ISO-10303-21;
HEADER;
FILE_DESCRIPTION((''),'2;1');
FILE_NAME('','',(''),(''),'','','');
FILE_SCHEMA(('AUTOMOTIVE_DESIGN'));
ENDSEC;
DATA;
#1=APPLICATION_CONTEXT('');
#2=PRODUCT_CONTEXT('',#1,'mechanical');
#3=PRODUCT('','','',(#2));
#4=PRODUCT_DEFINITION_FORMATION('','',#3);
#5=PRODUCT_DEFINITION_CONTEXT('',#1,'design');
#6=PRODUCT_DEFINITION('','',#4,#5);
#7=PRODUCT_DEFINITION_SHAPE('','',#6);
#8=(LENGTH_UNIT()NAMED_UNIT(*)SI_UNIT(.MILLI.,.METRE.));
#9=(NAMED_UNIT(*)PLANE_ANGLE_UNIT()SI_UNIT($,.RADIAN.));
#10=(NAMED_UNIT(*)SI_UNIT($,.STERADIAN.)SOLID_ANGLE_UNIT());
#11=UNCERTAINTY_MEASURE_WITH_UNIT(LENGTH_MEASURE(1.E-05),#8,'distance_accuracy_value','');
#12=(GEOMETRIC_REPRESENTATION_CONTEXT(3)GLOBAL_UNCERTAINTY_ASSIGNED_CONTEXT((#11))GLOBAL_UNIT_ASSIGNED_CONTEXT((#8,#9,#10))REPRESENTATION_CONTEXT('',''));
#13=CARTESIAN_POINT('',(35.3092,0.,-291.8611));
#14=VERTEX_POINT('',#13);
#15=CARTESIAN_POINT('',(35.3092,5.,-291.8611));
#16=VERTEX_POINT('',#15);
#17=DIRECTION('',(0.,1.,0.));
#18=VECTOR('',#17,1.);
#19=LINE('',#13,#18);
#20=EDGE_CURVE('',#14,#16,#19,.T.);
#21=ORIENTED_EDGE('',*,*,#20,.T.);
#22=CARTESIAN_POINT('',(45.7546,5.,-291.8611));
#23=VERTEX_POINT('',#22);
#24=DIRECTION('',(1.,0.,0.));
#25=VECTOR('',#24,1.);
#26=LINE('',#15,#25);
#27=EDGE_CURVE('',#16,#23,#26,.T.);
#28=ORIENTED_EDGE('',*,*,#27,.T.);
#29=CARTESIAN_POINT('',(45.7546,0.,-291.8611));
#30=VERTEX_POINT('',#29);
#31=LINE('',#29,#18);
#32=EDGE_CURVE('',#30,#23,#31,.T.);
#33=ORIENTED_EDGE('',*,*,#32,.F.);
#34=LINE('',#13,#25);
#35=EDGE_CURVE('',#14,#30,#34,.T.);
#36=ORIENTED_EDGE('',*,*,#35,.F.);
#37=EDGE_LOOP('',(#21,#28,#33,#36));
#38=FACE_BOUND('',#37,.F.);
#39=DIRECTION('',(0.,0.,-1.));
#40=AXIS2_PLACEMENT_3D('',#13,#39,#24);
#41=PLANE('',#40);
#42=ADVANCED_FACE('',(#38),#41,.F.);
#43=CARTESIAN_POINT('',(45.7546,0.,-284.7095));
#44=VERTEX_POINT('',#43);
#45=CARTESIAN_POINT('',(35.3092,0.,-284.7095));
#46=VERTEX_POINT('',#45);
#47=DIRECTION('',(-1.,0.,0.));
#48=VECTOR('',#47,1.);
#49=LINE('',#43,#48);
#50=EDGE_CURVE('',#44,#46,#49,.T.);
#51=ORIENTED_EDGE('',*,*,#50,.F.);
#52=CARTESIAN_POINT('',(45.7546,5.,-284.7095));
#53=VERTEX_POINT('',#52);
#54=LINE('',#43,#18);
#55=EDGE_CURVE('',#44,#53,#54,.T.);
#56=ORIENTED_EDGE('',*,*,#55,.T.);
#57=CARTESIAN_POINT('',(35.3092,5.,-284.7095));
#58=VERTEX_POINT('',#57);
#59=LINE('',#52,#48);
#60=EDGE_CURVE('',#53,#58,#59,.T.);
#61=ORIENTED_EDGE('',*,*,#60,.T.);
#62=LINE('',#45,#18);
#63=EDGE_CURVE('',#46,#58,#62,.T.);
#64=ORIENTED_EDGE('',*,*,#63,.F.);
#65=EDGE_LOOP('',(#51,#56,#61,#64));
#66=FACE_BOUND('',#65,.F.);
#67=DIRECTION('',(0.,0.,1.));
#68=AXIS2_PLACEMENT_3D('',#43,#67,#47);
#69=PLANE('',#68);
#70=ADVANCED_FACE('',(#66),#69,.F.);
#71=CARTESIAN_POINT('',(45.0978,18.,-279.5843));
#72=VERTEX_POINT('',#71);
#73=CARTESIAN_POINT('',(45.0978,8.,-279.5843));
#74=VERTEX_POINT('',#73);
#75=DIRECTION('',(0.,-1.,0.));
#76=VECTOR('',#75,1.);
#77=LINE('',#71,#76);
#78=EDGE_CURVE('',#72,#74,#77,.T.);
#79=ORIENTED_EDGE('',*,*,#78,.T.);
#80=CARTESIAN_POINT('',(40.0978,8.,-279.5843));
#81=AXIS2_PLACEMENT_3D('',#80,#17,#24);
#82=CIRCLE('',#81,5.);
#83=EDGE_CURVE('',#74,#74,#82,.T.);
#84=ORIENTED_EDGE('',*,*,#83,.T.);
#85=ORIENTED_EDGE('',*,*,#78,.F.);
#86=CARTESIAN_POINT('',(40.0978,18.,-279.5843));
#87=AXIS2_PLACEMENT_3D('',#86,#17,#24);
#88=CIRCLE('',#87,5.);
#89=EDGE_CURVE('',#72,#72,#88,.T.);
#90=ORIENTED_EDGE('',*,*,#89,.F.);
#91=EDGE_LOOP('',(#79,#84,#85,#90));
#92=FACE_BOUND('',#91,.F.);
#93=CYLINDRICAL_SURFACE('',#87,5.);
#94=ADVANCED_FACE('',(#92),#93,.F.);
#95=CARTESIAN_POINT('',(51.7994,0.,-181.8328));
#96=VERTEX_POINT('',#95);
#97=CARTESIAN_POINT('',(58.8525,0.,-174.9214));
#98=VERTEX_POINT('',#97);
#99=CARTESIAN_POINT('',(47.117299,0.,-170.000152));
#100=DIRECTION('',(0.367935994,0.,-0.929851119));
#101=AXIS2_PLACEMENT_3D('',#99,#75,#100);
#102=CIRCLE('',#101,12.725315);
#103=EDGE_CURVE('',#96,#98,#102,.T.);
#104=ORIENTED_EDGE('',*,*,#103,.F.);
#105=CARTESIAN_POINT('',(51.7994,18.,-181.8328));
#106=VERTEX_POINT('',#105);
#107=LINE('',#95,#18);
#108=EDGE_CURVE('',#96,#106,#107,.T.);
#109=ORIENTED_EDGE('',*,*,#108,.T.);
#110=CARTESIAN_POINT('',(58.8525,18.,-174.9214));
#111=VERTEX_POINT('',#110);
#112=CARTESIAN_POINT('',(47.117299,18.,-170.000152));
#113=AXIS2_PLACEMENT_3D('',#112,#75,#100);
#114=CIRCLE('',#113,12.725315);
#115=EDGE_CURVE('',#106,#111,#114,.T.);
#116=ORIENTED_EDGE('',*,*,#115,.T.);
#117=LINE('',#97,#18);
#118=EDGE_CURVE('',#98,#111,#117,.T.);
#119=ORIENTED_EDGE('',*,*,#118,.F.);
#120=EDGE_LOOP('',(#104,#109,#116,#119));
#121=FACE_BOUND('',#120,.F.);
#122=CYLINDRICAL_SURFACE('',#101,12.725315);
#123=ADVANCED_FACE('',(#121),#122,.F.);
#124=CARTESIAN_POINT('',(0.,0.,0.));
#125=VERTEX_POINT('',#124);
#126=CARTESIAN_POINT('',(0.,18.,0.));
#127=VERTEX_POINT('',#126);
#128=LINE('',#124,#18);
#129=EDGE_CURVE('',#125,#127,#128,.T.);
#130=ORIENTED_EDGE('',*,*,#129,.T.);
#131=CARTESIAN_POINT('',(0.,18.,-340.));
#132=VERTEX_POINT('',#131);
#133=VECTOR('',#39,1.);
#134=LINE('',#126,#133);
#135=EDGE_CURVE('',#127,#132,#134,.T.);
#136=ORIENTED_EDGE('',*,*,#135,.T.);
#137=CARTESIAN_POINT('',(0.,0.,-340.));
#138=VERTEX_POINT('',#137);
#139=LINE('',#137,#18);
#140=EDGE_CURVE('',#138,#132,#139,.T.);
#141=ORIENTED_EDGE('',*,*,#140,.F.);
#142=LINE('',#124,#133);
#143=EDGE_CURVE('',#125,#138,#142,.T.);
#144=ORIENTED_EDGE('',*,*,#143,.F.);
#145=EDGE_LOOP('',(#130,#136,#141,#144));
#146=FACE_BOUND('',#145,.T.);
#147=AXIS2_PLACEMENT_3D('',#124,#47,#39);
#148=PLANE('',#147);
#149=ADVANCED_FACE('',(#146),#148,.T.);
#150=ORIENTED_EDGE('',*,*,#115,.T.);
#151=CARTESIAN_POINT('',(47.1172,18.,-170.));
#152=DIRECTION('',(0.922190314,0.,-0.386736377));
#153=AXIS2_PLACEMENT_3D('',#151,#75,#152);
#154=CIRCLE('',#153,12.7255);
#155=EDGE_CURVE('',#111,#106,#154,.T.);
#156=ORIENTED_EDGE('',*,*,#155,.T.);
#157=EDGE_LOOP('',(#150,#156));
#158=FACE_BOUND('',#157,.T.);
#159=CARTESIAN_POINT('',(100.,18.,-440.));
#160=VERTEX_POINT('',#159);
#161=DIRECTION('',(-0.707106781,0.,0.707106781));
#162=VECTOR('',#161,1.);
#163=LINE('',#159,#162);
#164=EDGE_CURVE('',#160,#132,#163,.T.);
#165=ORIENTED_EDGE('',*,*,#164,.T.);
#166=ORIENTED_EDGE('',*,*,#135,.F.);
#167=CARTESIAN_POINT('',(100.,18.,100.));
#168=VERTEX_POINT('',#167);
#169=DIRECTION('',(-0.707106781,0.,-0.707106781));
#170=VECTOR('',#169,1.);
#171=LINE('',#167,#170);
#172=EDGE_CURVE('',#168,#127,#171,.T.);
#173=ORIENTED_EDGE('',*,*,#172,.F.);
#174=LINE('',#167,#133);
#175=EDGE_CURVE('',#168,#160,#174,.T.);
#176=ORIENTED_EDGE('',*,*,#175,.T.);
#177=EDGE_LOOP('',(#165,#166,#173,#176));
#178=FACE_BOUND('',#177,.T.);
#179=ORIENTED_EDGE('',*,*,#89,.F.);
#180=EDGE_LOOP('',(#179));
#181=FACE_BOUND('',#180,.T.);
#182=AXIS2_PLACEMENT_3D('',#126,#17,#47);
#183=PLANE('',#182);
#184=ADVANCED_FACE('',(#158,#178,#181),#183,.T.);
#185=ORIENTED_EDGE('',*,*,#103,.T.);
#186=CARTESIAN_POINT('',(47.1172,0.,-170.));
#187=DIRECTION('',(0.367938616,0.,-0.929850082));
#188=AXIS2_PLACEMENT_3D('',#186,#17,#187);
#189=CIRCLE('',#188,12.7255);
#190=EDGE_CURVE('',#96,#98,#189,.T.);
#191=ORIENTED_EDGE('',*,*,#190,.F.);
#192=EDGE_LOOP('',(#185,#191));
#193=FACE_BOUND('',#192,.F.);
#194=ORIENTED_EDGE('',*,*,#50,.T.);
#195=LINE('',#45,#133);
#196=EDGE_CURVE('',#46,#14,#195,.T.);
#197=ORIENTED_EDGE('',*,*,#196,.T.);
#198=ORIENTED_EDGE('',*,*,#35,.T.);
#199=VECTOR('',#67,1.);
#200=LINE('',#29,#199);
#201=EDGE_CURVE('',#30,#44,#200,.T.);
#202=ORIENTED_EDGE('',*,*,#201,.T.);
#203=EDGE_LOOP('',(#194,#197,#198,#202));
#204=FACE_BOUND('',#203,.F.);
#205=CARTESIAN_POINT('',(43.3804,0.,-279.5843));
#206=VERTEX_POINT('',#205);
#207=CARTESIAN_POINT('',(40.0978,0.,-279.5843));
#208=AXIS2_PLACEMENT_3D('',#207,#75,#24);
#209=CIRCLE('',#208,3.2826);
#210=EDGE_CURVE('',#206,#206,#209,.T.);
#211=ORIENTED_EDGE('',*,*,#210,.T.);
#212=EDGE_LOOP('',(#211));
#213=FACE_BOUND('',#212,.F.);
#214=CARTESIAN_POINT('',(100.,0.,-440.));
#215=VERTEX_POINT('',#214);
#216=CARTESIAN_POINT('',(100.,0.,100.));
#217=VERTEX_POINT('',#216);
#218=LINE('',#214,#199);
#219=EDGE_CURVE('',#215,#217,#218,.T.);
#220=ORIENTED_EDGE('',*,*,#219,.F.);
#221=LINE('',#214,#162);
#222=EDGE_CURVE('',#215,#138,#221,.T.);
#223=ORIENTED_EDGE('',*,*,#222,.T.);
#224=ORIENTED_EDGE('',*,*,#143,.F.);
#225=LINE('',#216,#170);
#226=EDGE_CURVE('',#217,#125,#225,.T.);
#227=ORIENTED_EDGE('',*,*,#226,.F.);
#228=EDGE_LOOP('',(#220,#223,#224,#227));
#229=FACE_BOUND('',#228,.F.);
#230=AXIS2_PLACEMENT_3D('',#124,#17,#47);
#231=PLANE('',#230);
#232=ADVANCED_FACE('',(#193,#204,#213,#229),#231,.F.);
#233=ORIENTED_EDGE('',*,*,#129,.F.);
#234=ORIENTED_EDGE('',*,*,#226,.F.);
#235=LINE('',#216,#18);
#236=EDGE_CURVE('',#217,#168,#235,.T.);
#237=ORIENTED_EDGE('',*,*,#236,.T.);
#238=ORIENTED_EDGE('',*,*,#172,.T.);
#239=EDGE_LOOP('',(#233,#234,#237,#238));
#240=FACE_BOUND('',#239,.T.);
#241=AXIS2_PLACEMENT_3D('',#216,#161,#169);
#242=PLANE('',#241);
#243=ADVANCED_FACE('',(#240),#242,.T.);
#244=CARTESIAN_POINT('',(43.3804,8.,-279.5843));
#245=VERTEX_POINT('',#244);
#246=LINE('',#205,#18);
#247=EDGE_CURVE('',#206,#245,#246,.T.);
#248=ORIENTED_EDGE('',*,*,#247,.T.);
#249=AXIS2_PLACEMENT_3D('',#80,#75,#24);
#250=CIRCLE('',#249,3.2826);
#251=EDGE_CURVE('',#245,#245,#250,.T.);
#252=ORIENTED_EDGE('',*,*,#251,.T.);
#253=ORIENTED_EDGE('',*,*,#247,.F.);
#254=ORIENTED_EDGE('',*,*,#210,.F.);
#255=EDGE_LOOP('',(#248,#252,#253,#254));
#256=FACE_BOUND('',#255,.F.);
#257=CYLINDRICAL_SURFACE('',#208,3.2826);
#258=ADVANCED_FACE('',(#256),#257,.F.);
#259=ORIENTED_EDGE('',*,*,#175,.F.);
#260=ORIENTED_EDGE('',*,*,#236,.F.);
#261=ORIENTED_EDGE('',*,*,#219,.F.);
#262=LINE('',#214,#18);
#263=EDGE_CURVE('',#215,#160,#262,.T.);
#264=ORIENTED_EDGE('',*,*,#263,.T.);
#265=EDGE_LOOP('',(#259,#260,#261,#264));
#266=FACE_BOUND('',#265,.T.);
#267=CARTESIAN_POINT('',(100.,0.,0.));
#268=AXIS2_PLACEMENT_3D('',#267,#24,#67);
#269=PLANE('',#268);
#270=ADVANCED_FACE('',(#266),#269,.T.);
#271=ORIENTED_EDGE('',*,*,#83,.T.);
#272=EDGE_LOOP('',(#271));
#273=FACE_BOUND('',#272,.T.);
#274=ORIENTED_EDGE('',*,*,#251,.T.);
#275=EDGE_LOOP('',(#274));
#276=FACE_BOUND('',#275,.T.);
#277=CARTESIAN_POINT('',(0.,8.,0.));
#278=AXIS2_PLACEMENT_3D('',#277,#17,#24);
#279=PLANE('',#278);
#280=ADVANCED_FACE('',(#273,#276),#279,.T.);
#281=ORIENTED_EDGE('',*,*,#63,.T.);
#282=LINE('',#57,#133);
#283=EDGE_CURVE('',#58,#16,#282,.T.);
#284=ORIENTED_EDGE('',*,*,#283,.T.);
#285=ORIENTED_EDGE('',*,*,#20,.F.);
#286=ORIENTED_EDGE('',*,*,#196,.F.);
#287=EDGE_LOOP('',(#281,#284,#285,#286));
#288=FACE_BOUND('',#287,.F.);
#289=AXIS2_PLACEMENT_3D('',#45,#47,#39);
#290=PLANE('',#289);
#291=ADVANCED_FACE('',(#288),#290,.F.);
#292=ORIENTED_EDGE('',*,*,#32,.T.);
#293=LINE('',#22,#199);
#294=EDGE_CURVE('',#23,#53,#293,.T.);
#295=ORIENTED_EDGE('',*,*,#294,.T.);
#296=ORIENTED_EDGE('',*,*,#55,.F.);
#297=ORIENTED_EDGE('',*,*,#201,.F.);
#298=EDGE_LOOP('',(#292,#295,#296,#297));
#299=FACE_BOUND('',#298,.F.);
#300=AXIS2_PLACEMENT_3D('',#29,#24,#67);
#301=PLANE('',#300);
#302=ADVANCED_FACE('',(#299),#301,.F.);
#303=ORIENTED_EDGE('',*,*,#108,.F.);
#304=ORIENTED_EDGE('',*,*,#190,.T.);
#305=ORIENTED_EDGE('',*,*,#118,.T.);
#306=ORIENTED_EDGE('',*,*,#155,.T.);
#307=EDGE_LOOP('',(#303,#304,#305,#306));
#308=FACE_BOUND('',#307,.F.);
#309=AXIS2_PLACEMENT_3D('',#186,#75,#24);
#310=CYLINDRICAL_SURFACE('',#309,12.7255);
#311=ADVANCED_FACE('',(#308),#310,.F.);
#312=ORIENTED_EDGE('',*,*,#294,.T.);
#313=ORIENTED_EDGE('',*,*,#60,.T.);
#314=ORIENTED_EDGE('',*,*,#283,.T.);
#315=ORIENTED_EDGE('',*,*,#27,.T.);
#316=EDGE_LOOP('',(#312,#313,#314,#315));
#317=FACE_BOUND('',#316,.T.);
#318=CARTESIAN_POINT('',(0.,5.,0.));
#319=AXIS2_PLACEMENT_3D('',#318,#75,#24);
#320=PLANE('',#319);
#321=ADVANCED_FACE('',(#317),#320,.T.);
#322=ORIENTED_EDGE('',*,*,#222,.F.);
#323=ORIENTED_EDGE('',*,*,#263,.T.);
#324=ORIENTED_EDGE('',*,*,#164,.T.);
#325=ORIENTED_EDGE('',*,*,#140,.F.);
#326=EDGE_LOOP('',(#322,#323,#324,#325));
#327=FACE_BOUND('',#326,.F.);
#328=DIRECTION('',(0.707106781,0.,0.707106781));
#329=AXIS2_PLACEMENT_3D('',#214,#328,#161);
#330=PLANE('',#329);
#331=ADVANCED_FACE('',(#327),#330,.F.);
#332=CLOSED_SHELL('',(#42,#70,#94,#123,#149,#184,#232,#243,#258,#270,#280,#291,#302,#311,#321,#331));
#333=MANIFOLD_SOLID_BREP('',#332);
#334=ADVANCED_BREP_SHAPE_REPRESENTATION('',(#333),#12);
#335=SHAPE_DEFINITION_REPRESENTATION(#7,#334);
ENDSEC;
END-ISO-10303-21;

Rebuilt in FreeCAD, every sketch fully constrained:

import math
import FreeCAD as App
import Part
import Sketcher

V = App.Vector
Q = App.Units.Quantity

doc = App.newDocument("Part")
body = doc.addObject("PartDesign::Body", "Body")

sketch1 = body.newObject("Sketcher::SketchObject", "Sketch")
sketch1.AttachmentSupport = (doc.getObject("XZ_Plane"), [""])
sketch1.MapMode = "FlatFace"
sketch1.addGeometry([
    Part.LineSegment(V(0, -340, 0), V(0, 0, 0)),
    Part.LineSegment(V(0, 0, 0), V(100, 100, 0)),
    Part.LineSegment(V(100, 100, 0), V(100, -440, 0)),
    Part.LineSegment(V(100, -440, 0), V(0, -340, 0)),
], False)
sketch1.addConstraint([
    Sketcher.Constraint("Coincident", 0, 2, 1, 1),
    Sketcher.Constraint("Coincident", 1, 2, 2, 1),
    Sketcher.Constraint("Coincident", 2, 2, 3, 1),
    Sketcher.Constraint("Coincident", 3, 2, 0, 1),
    Sketcher.Constraint("Vertical", 0),
    Sketcher.Constraint("Vertical", 2),
    Sketcher.Constraint("Coincident", 0, 2, -1, 1),
    Sketcher.Constraint("Perpendicular", 1, 3),
    Sketcher.Constraint("Equal", 1, 3),
    Sketcher.Constraint("DistanceY", 0, 1, 0, 2, Q("340 mm")),
    Sketcher.Constraint("DistanceX", -1, 1, 1, 2, Q("100 mm")),
])
pad1 = body.newObject("PartDesign::Pad", "Pad")
pad1.Profile = sketch1
pad1.Length = 18
pad1.Reversed = True

sketch2 = body.newObject("Sketcher::SketchObject", "Sketch001")
sketch2.AttachmentSupport = (doc.getObject("XZ_Plane"), [""])
sketch2.MapMode = "FlatFace"
sketch2.addGeometry([
    Part.ArcOfCircle(Part.Circle(V(47, -170, 0), V(0, 0, 1), 13), math.radians(-68), math.radians(-23)),
    Part.ArcOfCircle(Part.Circle(V(47, -170, 0), V(0, 0, 1), 13), math.radians(-23), math.radians(292)),
], False)
sketch2.addConstraint([
    Sketcher.Constraint("Tangent", 0, 1, 1, 2),
    Sketcher.Constraint("Coincident", 1, 1, 0, 2),
    Sketcher.Constraint("DistanceY", 0, 3, -1, 1, Q("170 mm")),
    Sketcher.Constraint("Radius", 0, Q("12.7255 mm")),
    Sketcher.Constraint("DistanceX", -1, 1, 0, 3, Q("47.1172 mm")),
    Sketcher.Constraint("DistanceX", -1, 1, 0, 1, Q("51.7994 mm")),
    Sketcher.Constraint("DistanceX", -1, 1, 1, 1, Q("58.8525 mm")),
])
pocket1 = body.newObject("PartDesign::Pocket", "Pocket")
pocket1.Profile = sketch2
pocket1.Length = 20

sketch3 = body.newObject("Sketcher::SketchObject", "Sketch002")
sketch3.AttachmentSupport = (doc.getObject("XZ_Plane"), [""])
sketch3.MapMode = "FlatFace"
sketch3.AttachmentOffset = App.Placement(V(0, 0, -18), App.Rotation())
sketch3.addGeometry(Part.Circle(V(40.1, -279.6, 0), V(0, 0, 1), 3.3), False)
sketch3.addConstraint([
    Sketcher.Constraint("Diameter", 0, Q("6.5652 mm")),
    Sketcher.Constraint("DistanceX", -1, 1, 0, 3, Q("40.0978 mm")),
    Sketcher.Constraint("DistanceY", 0, 3, -1, 1, Q("279.5843 mm")),
])
pocket2 = body.newObject("PartDesign::Pocket", "Pocket001")
pocket2.Profile = sketch3
pocket2.Length = 10
pocket2.Reversed = True

sketch4 = body.newObject("Sketcher::SketchObject", "Sketch003")
sketch4.AttachmentSupport = (doc.getObject("XZ_Plane"), [""])
sketch4.MapMode = "FlatFace"
sketch4.AttachmentOffset = App.Placement(V(0, 0, -18), App.Rotation())
sketch4.addGeometry(Part.Circle(V(40, -280, 0), V(0, 0, 1), 5), False)
sketch4.addConstraint([
    Sketcher.Constraint("Diameter", 0, Q("10 mm")),
    Sketcher.Constraint("DistanceX", -1, 1, 0, 3, Q("40.0978 mm")),
    Sketcher.Constraint("DistanceY", 0, 3, -1, 1, Q("279.5843 mm")),
])
pocket3 = body.newObject("PartDesign::Pocket", "Pocket002")
pocket3.Profile = sketch4
pocket3.Length = 10
pocket3.Reversed = True

sketch5 = body.newObject("Sketcher::SketchObject", "Sketch004")
sketch5.AttachmentSupport = (doc.getObject("XZ_Plane"), [""])
sketch5.MapMode = "FlatFace"
sketch5.addGeometry(Part.Circle(V(40.1, -279.6, 0), V(0, 0, 1), 3.3), False)
sketch5.addConstraint([
    Sketcher.Constraint("Diameter", 0, Q("6.5652 mm")),
    Sketcher.Constraint("DistanceX", -1, 1, 0, 3, Q("40.0978 mm")),
    Sketcher.Constraint("DistanceY", 0, 3, -1, 1, Q("279.5843 mm")),
])
pocket4 = body.newObject("PartDesign::Pocket", "Pocket003")
pocket4.Profile = sketch5
pocket4.Length = 18

sketch6 = body.newObject("Sketcher::SketchObject", "Sketch005")
sketch6.AttachmentSupport = (doc.getObject("XZ_Plane"), [""])
sketch6.MapMode = "FlatFace"
sketch6.addGeometry([
    Part.LineSegment(V(35, -285, 0), V(35, -292, 0)),
    Part.LineSegment(V(35, -292, 0), V(46, -292, 0)),
    Part.LineSegment(V(46, -292, 0), V(46, -285, 0)),
    Part.LineSegment(V(46, -285, 0), V(35, -285, 0)),
], False)
sketch6.addConstraint([
    Sketcher.Constraint("Coincident", 0, 2, 1, 1),
    Sketcher.Constraint("Coincident", 1, 2, 2, 1),
    Sketcher.Constraint("Coincident", 2, 2, 3, 1),
    Sketcher.Constraint("Coincident", 3, 2, 0, 1),
    Sketcher.Constraint("Vertical", 0),
    Sketcher.Constraint("Horizontal", 1),
    Sketcher.Constraint("Vertical", 2),
    Sketcher.Constraint("Horizontal", 3),
    Sketcher.Constraint("DistanceX", 1, 1, 1, 2, Q("10.4454 mm")),
    Sketcher.Constraint("DistanceY", 0, 2, 0, 1, Q("7.1516 mm")),
    Sketcher.Constraint("DistanceY", 0, 2, -1, 1, Q("291.861 mm")),
    Sketcher.Constraint("DistanceX", -1, 1, 0, 2, Q("35.3092 mm")),
])
pocket5 = body.newObject("PartDesign::Pocket", "Pocket004")
pocket5.Profile = sketch6
pocket5.Length = 5

doc.recompute()
